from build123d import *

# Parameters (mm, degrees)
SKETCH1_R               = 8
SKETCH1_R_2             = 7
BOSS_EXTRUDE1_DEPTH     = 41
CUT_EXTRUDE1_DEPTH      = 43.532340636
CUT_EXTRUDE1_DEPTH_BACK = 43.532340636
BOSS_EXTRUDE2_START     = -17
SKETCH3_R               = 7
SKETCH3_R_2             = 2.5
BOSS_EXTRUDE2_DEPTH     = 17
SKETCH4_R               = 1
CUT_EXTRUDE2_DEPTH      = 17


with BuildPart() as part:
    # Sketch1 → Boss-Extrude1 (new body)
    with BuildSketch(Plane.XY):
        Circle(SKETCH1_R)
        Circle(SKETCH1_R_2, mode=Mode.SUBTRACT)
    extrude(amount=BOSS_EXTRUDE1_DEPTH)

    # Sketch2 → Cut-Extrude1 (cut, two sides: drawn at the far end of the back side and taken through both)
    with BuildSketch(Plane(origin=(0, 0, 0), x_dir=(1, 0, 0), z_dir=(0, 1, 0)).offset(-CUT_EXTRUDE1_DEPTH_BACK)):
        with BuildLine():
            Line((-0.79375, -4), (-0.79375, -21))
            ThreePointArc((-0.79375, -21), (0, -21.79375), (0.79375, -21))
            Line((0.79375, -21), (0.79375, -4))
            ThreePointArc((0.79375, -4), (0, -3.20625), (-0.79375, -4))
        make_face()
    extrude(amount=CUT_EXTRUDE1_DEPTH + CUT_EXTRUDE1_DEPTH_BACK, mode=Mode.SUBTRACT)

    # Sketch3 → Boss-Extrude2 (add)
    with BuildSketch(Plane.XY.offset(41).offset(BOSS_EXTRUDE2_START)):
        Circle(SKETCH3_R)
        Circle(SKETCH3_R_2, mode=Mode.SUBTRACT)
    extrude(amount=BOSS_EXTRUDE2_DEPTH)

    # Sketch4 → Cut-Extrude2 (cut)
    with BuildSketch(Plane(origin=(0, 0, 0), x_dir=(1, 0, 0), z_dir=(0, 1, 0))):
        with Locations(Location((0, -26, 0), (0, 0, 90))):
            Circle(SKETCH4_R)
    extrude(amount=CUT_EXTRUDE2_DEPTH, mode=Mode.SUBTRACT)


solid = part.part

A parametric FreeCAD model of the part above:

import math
import FreeCAD as App
import Part
import Sketcher
from FreeCAD import Vector
Q = App.Units.Quantity

doc = App.newDocument("Part")
body = doc.addObject("PartDesign::Body", "Body")

sketch1 = doc.addObject("Sketcher::SketchObject", "Sketch")
body.addObject(sketch1)
sketch1.AttachmentSupport = (doc.XY_Plane, [""])
sketch1.MapMode = "FlatFace"
sketch1.addGeometry([
    Part.Circle(Vector(0, 0, 0), Vector(0, 0, 1), 8),
    Part.Circle(Vector(0, 0, 0), Vector(0, 0, 1), 7),
], False)
sketch1.addConstraint([
    Sketcher.Constraint("Coincident", 0, 3, -1, 1),
    Sketcher.Constraint("Coincident", 1, 3, -1, 1),
    Sketcher.Constraint("Diameter", 0, Q("16 mm")),
    Sketcher.Constraint("Diameter", 1, Q("14 mm")),
])
pad1 = doc.addObject("PartDesign::Pad", "Pad")
body.addObject(pad1)
pad1.Profile = sketch1
pad1.Length = 41

sketch2 = doc.addObject("Sketcher::SketchObject", "Sketch001")
body.addObject(sketch2)
sketch2.AttachmentSupport = (doc.XZ_Plane, [""])
sketch2.MapMode = "FlatFace"
sketch2.addGeometry([
    Part.LineSegment(Vector(-0.8, 4, 0), Vector(-0.8, 21, 0)),
    Part.ArcOfCircle(Part.Circle(Vector(0, 21, 0), Vector(0, 0, 1), 0.8), math.radians(0), math.radians(180)),
    Part.LineSegment(Vector(0.8, 21, 0), Vector(0.8, 4, 0)),
    Part.ArcOfCircle(Part.Circle(Vector(0, 4, 0), Vector(0, 0, 1), 0.8), math.radians(180), math.radians(360)),
], False)
sketch2.addConstraint([
    Sketcher.Constraint("Tangent", 0, 2, 1, 2),
    Sketcher.Constraint("Tangent", 1, 1, 2, 1),
    Sketcher.Constraint("Tangent", 2, 2, 3, 2),
    Sketcher.Constraint("Tangent", 3, 1, 0, 1),
    Sketcher.Constraint("Vertical", 0),
    Sketcher.Constraint("Vertical", 2),
    Sketcher.Constraint("PointOnObject", 1, 3, -2),
    Sketcher.Constraint("DistanceY", 0, 1, 0, 2, Q("17 mm")),
    Sketcher.Constraint("DistanceY", -1, 1, 1, 3, Q("21 mm")),
    Sketcher.Constraint("Radius", 1, Q("0.79375 mm")),
])
pocket1 = doc.addObject("PartDesign::Pocket", "Pocket")
body.addObject(pocket1)
pocket1.Profile = sketch2
pocket1.Type = "ThroughAll"
pocket1.Midplane = True

sketch3 = doc.addObject("Sketcher::SketchObject", "Sketch002")
body.addObject(sketch3)
sketch3.AttachmentSupport = (doc.XY_Plane, [""])
sketch3.MapMode = "FlatFace"
sketch3.AttachmentOffset = App.Placement(Vector(0, 0, 24), App.Rotation())
sketch3.addGeometry([
    Part.Circle(Vector(0, 0, 0), Vector(0, 0, 1), 7),
    Part.Circle(Vector(0, 0, 0), Vector(0, 0, 1), 2.5),
], False)
sketch3.addConstraint([
    Sketcher.Constraint("Coincident", 0, 3, -1, 1),
    Sketcher.Constraint("Coincident", 1, 3, -1, 1),
    Sketcher.Constraint("Diameter", 0, Q("14 mm")),
    Sketcher.Constraint("Diameter", 1, Q("5 mm")),
])
pad2 = doc.addObject("PartDesign::Pad", "Pad001")
body.addObject(pad2)
pad2.Profile = sketch3
pad2.Length = 17

sketch4 = doc.addObject("Sketcher::SketchObject", "Sketch003")
body.addObject(sketch4)
sketch4.AttachmentSupport = (doc.XZ_Plane, [""])
sketch4.MapMode = "FlatFace"
sketch4.addGeometry(Part.Circle(Vector(0, 26, 0), Vector(0, 0, 1), 1), False)
sketch4.addConstraint([
    Sketcher.Constraint("PointOnObject", 0, 3, -2),
    Sketcher.Constraint("Diameter", 0, Q("2 mm")),
    Sketcher.Constraint("DistanceY", -1, 1, 0, 3, Q("26 mm")),
])
pocket2 = doc.addObject("PartDesign::Pocket", "Pocket001")
body.addObject(pocket2)
pocket2.Profile = sketch4
pocket2.Length = 17

doc.recompute()
